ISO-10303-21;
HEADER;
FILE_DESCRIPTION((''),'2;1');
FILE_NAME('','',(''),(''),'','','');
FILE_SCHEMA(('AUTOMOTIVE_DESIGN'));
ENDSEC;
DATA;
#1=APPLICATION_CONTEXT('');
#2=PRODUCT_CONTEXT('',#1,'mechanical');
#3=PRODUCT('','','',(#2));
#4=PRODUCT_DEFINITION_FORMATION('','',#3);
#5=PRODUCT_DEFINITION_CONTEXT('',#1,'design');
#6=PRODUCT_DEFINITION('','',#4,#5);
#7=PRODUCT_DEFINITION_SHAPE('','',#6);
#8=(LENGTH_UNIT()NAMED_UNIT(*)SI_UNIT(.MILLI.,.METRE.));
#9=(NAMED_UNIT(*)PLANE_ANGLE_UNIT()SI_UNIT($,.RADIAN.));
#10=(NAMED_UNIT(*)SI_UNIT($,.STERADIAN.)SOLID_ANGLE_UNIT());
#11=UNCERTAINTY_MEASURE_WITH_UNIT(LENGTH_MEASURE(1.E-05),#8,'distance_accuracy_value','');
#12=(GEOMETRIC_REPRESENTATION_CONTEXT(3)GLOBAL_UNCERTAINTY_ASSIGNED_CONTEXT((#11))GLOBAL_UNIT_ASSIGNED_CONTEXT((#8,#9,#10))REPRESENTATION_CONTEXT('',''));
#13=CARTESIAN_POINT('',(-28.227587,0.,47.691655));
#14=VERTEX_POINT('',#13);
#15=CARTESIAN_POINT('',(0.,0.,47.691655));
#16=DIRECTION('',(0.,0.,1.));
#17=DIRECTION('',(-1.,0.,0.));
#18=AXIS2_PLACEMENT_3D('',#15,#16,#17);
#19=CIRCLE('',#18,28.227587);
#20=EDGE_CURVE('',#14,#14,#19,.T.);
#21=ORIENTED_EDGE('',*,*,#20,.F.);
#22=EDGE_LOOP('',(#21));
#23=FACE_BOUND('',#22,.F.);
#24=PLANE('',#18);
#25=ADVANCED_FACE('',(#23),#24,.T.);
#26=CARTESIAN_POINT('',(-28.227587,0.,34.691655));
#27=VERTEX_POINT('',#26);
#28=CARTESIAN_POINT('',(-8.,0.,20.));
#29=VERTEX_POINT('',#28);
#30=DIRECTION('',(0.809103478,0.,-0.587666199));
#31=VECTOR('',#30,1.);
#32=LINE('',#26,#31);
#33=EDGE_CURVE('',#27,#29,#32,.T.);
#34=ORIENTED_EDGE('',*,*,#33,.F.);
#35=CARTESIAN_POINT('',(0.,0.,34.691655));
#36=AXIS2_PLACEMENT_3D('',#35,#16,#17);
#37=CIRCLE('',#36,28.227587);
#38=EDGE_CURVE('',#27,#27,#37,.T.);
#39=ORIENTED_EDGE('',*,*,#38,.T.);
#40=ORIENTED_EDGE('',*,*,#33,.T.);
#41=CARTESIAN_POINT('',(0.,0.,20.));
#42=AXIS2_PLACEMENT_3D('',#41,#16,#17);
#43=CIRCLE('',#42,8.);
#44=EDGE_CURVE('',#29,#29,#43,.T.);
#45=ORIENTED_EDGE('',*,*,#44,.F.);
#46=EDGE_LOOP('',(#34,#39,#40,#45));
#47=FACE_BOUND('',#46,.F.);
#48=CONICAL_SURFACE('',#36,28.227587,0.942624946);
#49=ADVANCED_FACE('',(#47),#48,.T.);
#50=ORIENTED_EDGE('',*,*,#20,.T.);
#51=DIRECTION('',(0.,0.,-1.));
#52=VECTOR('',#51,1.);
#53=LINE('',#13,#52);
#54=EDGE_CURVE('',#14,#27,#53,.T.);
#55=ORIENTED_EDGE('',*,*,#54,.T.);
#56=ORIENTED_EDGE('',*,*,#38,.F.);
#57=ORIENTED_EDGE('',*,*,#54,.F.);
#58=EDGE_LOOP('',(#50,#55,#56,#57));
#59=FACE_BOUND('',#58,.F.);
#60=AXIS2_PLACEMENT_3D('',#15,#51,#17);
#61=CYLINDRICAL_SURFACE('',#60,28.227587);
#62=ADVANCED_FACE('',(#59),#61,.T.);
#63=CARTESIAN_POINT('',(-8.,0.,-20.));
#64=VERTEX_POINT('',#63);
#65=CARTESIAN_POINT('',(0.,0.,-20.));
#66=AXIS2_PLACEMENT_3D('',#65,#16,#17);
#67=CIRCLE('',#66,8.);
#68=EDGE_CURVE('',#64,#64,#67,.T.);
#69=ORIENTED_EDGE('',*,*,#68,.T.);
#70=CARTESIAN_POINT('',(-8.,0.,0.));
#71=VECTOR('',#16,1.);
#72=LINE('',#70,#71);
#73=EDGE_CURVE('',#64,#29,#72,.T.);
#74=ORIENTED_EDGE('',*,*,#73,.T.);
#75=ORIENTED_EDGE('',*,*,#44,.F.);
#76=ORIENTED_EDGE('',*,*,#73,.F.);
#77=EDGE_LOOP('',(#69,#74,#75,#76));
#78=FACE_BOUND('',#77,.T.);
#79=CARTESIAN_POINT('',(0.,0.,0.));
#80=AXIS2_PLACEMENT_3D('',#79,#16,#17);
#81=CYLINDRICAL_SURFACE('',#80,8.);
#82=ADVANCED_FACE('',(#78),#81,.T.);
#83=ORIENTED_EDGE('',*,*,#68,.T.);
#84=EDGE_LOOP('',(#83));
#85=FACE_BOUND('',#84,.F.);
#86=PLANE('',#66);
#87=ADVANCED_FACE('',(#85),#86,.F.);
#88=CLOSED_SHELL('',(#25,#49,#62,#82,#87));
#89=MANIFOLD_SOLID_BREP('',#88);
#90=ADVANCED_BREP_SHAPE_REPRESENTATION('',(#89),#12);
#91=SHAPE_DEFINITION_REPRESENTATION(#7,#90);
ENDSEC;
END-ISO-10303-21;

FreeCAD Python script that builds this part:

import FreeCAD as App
import Part
import Sketcher

V = App.Vector

doc = App.newDocument("Part")
body = doc.addObject("PartDesign::Body", "Body")

# Sketch on XZ plane
sketch1 = body.newObject("Sketcher::SketchObject", "Sketch")
sketch1.AttachmentSupport = (doc.getObject("XZ_Plane"), [""])
sketch1.MapMode = "FlatFace"
sketch1.addGeometry(Part.LineSegment(V(0, 48, 0), V(-28, 48, 0)), False)
sketch1.addGeometry(Part.LineSegment(V(-28, 48, 0), V(-28, 35, 0)), False)
sketch1.addGeometry(Part.LineSegment(V(-28, 35, 0), V(-8, 20, 0)), False)
sketch1.addGeometry(Part.LineSegment(V(-8, 20, 0), V(-8, -20, 0)), False)
sketch1.addGeometry(Part.LineSegment(V(-8, -20, 0), V(0, -20, 0)), False)
sketch1.addGeometry(Part.LineSegment(V(0, -20, 0), V(0, 48, 0)), False)
sketch1.addConstraint(Sketcher.Constraint("Coincident", 0, 2, 1, 1))
sketch1.addConstraint(Sketcher.Constraint("Coincident", 1, 2, 2, 1))
sketch1.addConstraint(Sketcher.Constraint("Coincident", 2, 2, 3, 1))
sketch1.addConstraint(Sketcher.Constraint("Coincident", 3, 2, 4, 1))
sketch1.addConstraint(Sketcher.Constraint("Coincident", 4, 2, 5, 1))
sketch1.addConstraint(Sketcher.Constraint("Coincident", 5, 2, 0, 1))
sketch1.addConstraint(Sketcher.Constraint("Horizontal", 0))
sketch1.addConstraint(Sketcher.Constraint("Vertical", 1))
sketch1.addConstraint(Sketcher.Constraint("Vertical", 3))
sketch1.addConstraint(Sketcher.Constraint("Horizontal", 4))
sketch1.addConstraint(Sketcher.Constraint("Vertical", 5))
sketch1.addConstraint(Sketcher.Constraint("PointOnObject", 4, 2, -2))
sketch1.addConstraint(Sketcher.Constraint("DistanceX", 4, 1, 4, 2, 8.0))
sketch1.addConstraint(Sketcher.Constraint("DistanceY", 1, 2, 1, 1, 13.0))
sketch1.addConstraint(Sketcher.Constraint("DistanceY", 3, 2, 3, 1, 40.0))
sketch1.addConstraint(Sketcher.Constraint("Distance", 2, 25.0))
sketch1.addConstraint(Sketcher.Constraint("DistanceY", -1, 1, 2, 2, 20.0))
sketch1.addConstraint(Sketcher.Constraint("DistanceX", 0, 2, 0, 1, 28.227587))
revolution = body.newObject("PartDesign::Revolution", "Revolution")
revolution.Profile = sketch1
revolution.ReferenceAxis = (sketch1, ["V_Axis"])
revolution.Angle = 360

doc.recompute()
